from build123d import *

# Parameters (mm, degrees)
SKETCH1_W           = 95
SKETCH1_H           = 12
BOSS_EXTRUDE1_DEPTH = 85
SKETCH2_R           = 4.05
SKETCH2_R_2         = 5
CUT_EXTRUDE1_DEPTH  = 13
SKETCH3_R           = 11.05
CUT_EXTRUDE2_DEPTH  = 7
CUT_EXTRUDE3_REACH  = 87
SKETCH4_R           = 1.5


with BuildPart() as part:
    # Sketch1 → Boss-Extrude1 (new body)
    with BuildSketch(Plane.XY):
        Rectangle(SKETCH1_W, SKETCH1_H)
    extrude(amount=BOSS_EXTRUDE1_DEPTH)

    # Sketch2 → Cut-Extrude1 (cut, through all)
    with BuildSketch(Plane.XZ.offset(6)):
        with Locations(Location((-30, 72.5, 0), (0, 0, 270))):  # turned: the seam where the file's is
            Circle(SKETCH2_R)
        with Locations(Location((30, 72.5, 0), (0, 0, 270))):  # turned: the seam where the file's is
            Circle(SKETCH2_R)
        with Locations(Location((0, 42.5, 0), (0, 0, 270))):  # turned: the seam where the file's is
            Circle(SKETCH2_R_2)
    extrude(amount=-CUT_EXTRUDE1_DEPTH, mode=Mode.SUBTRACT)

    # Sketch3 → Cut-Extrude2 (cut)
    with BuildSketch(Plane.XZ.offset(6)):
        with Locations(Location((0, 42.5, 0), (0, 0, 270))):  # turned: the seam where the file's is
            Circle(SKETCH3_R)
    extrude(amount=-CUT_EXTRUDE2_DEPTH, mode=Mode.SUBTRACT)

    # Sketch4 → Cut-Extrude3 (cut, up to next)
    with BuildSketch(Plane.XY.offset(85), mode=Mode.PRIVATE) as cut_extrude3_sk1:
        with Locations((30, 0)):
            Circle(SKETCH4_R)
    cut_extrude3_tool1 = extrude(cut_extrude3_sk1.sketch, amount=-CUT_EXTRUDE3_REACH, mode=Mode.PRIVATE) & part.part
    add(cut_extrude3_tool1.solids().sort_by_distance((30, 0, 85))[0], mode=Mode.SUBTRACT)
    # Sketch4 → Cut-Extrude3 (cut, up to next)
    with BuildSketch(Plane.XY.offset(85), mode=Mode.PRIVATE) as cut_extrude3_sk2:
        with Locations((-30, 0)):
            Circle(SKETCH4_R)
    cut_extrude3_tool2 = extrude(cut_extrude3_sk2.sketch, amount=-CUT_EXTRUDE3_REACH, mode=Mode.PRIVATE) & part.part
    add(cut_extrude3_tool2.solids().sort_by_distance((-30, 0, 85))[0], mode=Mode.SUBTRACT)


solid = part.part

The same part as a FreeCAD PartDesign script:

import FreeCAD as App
import Part
import Sketcher


def add_polygon(sketch, points):
    """Adds a closed chain of lines whose ends are joined by coincident constraints."""
    first, n = sketch.GeometryCount, len(points)
    for a, b in zip(points, points[1:] + points[:1]):
        sketch.addGeometry(Part.LineSegment(App.Vector(*a, 0), App.Vector(*b, 0)), False)
    for i in range(n):
        sketch.addConstraint(Sketcher.Constraint("Coincident", first + i, 2, first + (i + 1) % n, 1))

doc = App.newDocument("Part")
body = doc.addObject("PartDesign::Body", "Body")

# Sketch on XY plane
sketch1 = body.newObject("Sketcher::SketchObject", "Sketch")
sketch1.AttachmentSupport = (doc.getObject("XY_Plane"), [""])
sketch1.MapMode = "FlatFace"
add_polygon(sketch1, [(-48, 6), (-48, -6), (48, -6), (48, 6)])  # lines 0-3
sketch1.addConstraint([
    Sketcher.Constraint("Vertical", 0),
    Sketcher.Constraint("Horizontal", 1),
    Sketcher.Constraint("Vertical", 2),
    Sketcher.Constraint("Horizontal", 3),
    Sketcher.Constraint("Symmetric", 0, 2, 2, 2, -1, 1),
    Sketcher.Constraint("DistanceX", 1, 1, 1, 2, 95.0),
    Sketcher.Constraint("DistanceY", 0, 2, 0, 1, 12.0),
])
pad1 = body.newObject("PartDesign::Pad", "Pad")
pad1.Profile = sketch1
pad1.Length = 85

# Sketch on XZ plane
sketch2 = body.newObject("Sketcher::SketchObject", "Sketch001")
sketch2.AttachmentSupport = (doc.getObject("XZ_Plane"), [""])
sketch2.MapMode = "FlatFace"
sketch2.AttachmentOffset = App.Placement(App.Vector(0, 0, 6), App.Rotation())
sketch2.addGeometry([
    Part.Circle(App.Vector(-30, 72.5, 0), App.Vector(0, 0, 1), 4),
    Part.Circle(App.Vector(30, 72.5, 0), App.Vector(0, 0, 1), 4),
    Part.Circle(App.Vector(0, 42.5, 0), App.Vector(0, 0, 1), 5),
], False)
sketch2.addConstraint([
    Sketcher.Constraint("Equal", 0, 1),
    Sketcher.Constraint("Symmetric", 0, 3, 1, 3, -2),
    Sketcher.Constraint("PointOnObject", 2, 3, -2),
    Sketcher.Constraint("Diameter", 2, 10.0),
    Sketcher.Constraint("Diameter", 0, 8.1),
    Sketcher.Constraint("DistanceX", 0, 3, -1, 1, 30.0),
    Sketcher.Constraint("DistanceY", 2, 3, 0, 3, 30.0),
    Sketcher.Constraint("DistanceY", -1, 1, 0, 3, 72.5),
])
pocket1 = body.newObject("PartDesign::Pocket", "Pocket")
pocket1.Profile = sketch2
pocket1.Type = "ThroughAll"

# Sketch on XZ plane
sketch3 = body.newObject("Sketcher::SketchObject", "Sketch002")
sketch3.AttachmentSupport = (doc.getObject("XZ_Plane"), [""])
sketch3.MapMode = "FlatFace"
sketch3.AttachmentOffset = App.Placement(App.Vector(0, 0, 6), App.Rotation())
sketch3.addGeometry(Part.Circle(App.Vector(0, 42, 0), App.Vector(0, 0, 1), 11), False)
sketch3.addConstraint([
    Sketcher.Constraint("PointOnObject", 0, 3, -2),
    Sketcher.Constraint("Diameter", 0, 22.1),
    Sketcher.Constraint("DistanceY", -1, 1, 0, 3, 42.5),
])
pocket2 = body.newObject("PartDesign::Pocket", "Pocket001")
pocket2.Profile = sketch3
pocket2.Length = 7

# Sketch on XY plane
sketch4 = body.newObject("Sketcher::SketchObject", "Sketch003")
sketch4.AttachmentSupport = (doc.getObject("XY_Plane"), [""])
sketch4.MapMode = "FlatFace"
sketch4.AttachmentOffset = App.Placement(App.Vector(0, 0, 85), App.Rotation())
sketch4.addGeometry(Part.Circle(App.Vector(30, 0, 0), App.Vector(0, 0, 1), 1.5), False)
sketch4.addConstraint([
    Sketcher.Constraint("PointOnObject", 0, 3, -1),
    Sketcher.Constraint("Diameter", 0, 3.0),
    Sketcher.Constraint("DistanceX", -1, 1, 0, 3, 30.0),
])
pocket3 = body.newObject("PartDesign::Pocket", "Pocket002")
pocket3.Profile = sketch4
pocket3.Type = "UpToFirst"

# Sketch on XY plane
sketch5 = body.newObject("Sketcher::SketchObject", "Sketch004")
sketch5.AttachmentSupport = (doc.getObject("XY_Plane"), [""])
sketch5.MapMode = "FlatFace"
sketch5.AttachmentOffset = App.Placement(App.Vector(0, 0, 85), App.Rotation())
sketch5.addGeometry(Part.Circle(App.Vector(-30, 0, 0), App.Vector(0, 0, 1), 1.5), False)
sketch5.addConstraint([
    Sketcher.Constraint("PointOnObject", 0, 3, -1),
    Sketcher.Constraint("Diameter", 0, 3.0),
    Sketcher.Constraint("DistanceX", 0, 3, -1, 1, 30.0),
])
pocket4 = body.newObject("PartDesign::Pocket", "Pocket003")
pocket4.Profile = sketch5
pocket4.Type = "UpToFirst"

doc.recompute()
